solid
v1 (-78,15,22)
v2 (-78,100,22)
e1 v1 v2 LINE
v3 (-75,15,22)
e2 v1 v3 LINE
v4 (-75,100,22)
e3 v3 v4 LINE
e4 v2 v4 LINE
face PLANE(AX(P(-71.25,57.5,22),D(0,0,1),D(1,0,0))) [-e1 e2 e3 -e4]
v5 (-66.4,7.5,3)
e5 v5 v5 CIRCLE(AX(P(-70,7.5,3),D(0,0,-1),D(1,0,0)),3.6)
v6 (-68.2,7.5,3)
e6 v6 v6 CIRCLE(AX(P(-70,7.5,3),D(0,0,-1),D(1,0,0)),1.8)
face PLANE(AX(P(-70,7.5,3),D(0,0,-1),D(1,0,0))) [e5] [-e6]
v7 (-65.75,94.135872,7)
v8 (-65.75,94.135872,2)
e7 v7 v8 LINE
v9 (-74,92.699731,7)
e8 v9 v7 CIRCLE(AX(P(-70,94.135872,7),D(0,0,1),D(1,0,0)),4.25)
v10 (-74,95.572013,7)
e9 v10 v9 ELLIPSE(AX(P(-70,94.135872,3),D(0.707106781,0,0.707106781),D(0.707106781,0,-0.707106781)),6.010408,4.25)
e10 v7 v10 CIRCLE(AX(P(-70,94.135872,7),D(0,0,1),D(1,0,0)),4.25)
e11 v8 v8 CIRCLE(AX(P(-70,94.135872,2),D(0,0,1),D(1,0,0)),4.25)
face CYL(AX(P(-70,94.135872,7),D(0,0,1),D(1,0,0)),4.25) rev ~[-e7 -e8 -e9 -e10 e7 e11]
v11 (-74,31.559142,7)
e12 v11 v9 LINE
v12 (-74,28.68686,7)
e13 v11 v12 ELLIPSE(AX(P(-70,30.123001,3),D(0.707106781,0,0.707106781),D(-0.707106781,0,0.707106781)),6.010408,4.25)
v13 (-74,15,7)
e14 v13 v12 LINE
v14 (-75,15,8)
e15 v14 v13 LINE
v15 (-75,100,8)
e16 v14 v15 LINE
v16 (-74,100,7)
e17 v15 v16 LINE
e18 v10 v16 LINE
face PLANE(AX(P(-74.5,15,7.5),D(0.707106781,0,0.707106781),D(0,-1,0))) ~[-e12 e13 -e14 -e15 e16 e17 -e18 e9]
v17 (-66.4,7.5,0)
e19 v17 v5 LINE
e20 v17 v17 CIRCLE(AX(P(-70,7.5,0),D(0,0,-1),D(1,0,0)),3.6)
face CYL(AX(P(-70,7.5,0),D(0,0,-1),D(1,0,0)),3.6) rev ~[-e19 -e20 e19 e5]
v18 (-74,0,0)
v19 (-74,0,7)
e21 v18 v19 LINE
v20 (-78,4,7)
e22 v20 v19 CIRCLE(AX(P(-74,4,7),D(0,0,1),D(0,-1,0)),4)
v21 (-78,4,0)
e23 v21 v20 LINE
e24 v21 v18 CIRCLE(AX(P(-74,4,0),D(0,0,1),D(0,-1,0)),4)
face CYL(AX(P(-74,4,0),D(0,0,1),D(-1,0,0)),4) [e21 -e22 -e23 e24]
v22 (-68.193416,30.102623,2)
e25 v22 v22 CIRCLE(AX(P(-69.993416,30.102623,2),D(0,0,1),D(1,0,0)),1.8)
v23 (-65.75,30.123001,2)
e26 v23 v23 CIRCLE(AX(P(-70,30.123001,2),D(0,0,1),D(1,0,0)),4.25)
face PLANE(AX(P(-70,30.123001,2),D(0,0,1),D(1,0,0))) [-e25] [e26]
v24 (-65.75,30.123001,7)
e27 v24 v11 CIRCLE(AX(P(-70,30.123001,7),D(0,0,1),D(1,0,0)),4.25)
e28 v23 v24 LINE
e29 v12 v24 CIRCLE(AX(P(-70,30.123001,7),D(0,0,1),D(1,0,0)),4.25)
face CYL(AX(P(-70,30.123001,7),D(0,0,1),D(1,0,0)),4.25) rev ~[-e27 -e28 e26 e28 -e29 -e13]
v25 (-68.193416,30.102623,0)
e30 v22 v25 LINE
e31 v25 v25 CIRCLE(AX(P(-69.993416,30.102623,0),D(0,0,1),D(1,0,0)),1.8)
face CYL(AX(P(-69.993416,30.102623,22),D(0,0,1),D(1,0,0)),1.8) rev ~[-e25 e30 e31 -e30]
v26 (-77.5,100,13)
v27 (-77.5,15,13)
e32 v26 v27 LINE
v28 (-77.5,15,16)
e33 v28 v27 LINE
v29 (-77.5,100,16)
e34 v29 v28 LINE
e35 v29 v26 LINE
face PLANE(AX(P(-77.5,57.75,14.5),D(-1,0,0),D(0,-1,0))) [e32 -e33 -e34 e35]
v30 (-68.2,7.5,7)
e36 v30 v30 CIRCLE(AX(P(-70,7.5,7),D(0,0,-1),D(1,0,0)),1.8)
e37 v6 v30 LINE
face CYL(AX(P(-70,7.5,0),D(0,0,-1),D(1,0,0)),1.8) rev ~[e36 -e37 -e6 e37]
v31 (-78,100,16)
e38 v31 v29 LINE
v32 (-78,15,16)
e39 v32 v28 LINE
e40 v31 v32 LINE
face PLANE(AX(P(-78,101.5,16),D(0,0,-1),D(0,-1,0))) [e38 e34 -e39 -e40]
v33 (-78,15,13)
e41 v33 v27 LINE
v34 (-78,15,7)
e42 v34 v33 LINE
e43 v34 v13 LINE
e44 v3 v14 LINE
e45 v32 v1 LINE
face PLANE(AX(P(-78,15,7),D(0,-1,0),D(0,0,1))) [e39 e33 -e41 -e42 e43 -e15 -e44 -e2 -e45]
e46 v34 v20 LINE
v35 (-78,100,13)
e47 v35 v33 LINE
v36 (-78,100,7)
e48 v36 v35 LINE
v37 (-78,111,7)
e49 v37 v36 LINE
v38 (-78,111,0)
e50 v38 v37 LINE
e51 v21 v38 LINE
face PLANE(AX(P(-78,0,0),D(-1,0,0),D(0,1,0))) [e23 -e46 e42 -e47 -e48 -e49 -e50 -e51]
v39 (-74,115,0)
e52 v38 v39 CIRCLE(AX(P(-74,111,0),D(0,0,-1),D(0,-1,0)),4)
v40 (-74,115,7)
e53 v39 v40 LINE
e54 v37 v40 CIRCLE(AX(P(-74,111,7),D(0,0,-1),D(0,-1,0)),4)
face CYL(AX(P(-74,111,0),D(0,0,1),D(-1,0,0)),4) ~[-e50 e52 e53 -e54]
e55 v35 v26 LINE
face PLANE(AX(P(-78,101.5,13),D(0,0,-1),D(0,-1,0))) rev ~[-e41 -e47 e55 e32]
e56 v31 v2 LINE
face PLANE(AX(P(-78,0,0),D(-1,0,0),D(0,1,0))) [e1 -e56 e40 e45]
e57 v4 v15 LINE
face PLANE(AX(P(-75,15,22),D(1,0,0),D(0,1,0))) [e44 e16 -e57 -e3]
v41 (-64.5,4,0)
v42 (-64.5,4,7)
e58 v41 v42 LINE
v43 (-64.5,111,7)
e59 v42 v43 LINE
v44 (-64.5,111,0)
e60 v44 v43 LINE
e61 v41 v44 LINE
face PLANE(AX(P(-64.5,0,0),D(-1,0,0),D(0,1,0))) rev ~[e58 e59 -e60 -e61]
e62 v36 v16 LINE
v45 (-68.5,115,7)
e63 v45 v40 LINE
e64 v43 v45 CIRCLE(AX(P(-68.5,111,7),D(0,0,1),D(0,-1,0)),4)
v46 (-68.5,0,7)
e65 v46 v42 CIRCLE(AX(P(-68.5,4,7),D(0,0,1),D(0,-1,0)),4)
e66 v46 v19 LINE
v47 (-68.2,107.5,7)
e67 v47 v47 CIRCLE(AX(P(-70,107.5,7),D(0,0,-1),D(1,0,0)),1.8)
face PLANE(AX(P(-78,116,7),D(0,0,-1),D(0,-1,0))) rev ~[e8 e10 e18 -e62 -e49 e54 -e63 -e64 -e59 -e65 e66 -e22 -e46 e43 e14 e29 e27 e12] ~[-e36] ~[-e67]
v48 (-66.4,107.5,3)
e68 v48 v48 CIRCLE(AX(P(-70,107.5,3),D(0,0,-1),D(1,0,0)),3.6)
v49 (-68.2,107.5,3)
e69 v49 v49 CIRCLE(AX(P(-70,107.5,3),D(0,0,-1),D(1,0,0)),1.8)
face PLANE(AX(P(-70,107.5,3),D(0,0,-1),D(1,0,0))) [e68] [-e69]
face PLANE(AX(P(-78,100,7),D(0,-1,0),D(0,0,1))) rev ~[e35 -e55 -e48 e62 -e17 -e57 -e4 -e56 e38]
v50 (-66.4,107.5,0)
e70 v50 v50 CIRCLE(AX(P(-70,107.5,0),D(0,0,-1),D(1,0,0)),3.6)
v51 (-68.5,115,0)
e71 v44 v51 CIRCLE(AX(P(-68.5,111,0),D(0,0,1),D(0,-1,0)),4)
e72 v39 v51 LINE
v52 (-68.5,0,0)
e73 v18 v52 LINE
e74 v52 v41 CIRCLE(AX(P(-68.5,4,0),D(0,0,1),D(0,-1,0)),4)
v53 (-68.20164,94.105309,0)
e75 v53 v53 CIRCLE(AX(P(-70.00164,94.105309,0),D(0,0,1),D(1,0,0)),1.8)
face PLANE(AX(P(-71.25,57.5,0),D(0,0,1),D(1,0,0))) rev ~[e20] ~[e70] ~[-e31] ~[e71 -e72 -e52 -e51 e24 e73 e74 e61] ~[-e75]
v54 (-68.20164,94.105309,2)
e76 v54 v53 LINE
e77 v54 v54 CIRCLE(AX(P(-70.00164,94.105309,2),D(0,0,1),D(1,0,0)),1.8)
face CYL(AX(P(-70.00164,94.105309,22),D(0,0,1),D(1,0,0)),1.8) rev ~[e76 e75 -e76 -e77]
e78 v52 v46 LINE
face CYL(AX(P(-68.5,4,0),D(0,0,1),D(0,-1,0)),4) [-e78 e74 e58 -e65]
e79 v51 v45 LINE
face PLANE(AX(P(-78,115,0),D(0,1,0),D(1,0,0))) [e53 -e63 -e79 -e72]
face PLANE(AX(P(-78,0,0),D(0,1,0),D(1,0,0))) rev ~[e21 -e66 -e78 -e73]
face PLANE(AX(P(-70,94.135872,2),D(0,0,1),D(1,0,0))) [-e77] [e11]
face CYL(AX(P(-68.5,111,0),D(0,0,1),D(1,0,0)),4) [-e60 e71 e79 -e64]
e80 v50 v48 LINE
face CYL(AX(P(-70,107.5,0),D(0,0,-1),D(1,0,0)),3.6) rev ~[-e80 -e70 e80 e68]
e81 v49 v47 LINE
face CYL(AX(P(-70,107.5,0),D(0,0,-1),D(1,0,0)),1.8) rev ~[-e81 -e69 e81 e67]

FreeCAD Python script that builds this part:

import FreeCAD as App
import Part
import Sketcher


def edges_at(feature, points):
    """Names of the edges that pass closest to the given points."""
    edges = feature.Shape.Edges
    near = lambda p: min(range(len(edges)), key=lambda i: edges[i].distToShape(Part.Vertex(*p))[0])
    return sorted({f"Edge{near(p) + 1}" for p in points})

doc = App.newDocument("Part")
body = doc.addObject("PartDesign::Body", "Body")

# Sketch on XY plane
sketch1 = doc.addObject("Sketcher::SketchObject", "Sketch")
body.addObject(sketch1)
sketch1.AttachmentSupport = (doc.XY_Plane, [""])
sketch1.MapMode = "FlatFace"
sketch1.addGeometry(Part.LineSegment(App.Vector(-78, 115, 0), App.Vector(-78, 0, 0)), False)
sketch1.addGeometry(Part.LineSegment(App.Vector(-78, 0, 0), App.Vector(-64, 0, 0)), False)
sketch1.addGeometry(Part.LineSegment(App.Vector(-64, 0, 0), App.Vector(-64, 115, 0)), False)
sketch1.addGeometry(Part.LineSegment(App.Vector(-64, 115, 0), App.Vector(-78, 115, 0)), False)
sketch1.addConstraint(Sketcher.Constraint("Coincident", 0, 2, 1, 1))
sketch1.addConstraint(Sketcher.Constraint("Coincident", 1, 2, 2, 1))
sketch1.addConstraint(Sketcher.Constraint("Coincident", 2, 2, 3, 1))
sketch1.addConstraint(Sketcher.Constraint("Coincident", 3, 2, 0, 1))
sketch1.addConstraint(Sketcher.Constraint("Vertical", 0))
sketch1.addConstraint(Sketcher.Constraint("Horizontal", 1))
sketch1.addConstraint(Sketcher.Constraint("Vertical", 2))
sketch1.addConstraint(Sketcher.Constraint("Horizontal", 3))
sketch1.addConstraint(Sketcher.Constraint("PointOnObject", 0, 2, -1))
sketch1.addConstraint(Sketcher.Constraint("DistanceY", 0, 2, 0, 1, 115.0))
sketch1.addConstraint(Sketcher.Constraint("DistanceX", 1, 1, 1, 2, 13.5))
sketch1.addConstraint(Sketcher.Constraint("DistanceX", 0, 2, -1, 1, 78.0))
pad1 = doc.addObject("PartDesign::Pad", "Pad")
body.addObject(pad1)
pad1.Profile = sketch1
pad1.Length = 22

# Sketch on YZ plane
sketch2 = doc.addObject("Sketcher::SketchObject", "Sketch001")
body.addObject(sketch2)
sketch2.AttachmentSupport = (doc.YZ_Plane, [""])
sketch2.MapMode = "FlatFace"
sketch2.AttachmentOffset = App.Placement(App.Vector(0, 0, -78), App.Rotation())
sketch2.addGeometry(Part.LineSegment(App.Vector(116, 23, 0), App.Vector(116, 7, 0)), False)
sketch2.addGeometry(Part.LineSegment(App.Vector(116, 7, 0), App.Vector(100, 7, 0)), False)
sketch2.addGeometry(Part.LineSegment(App.Vector(100, 7, 0), App.Vector(100, 23, 0)), False)
sketch2.addGeometry(Part.LineSegment(App.Vector(100, 23, 0), App.Vector(116, 23, 0)), False)
sketch2.addGeometry(Part.LineSegment(App.Vector(15, 23, 0), App.Vector(15, 7, 0)), False)
sketch2.addGeometry(Part.LineSegment(App.Vector(15, 7, 0), App.Vector(-1, 7, 0)), False)
sketch2.addGeometry(Part.LineSegment(App.Vector(-1, 7, 0), App.Vector(-1, 23, 0)), False)
sketch2.addGeometry(Part.LineSegment(App.Vector(-1, 23, 0), App.Vector(15, 23, 0)), False)
sketch2.addConstraint(Sketcher.Constraint("Coincident", 0, 2, 1, 1))
sketch2.addConstraint(Sketcher.Constraint("Coincident", 1, 2, 2, 1))
sketch2.addConstraint(Sketcher.Constraint("Coincident", 2, 2, 3, 1))
sketch2.addConstraint(Sketcher.Constraint("Coincident", 3, 2, 0, 1))
sketch2.addConstraint(Sketcher.Constraint("Coincident", 4, 2, 5, 1))
sketch2.addConstraint(Sketcher.Constraint("Coincident", 5, 2, 6, 1))
sketch2.addConstraint(Sketcher.Constraint("Coincident", 6, 2, 7, 1))
sketch2.addConstraint(Sketcher.Constraint("Coincident", 7, 2, 4, 1))
sketch2.addConstraint(Sketcher.Constraint("Vertical", 0))
sketch2.addConstraint(Sketcher.Constraint("Horizontal", 1))
sketch2.addConstraint(Sketcher.Constraint("Vertical", 2))
sketch2.addConstraint(Sketcher.Constraint("Horizontal", 3))
sketch2.addConstraint(Sketcher.Constraint("Vertical", 4))
sketch2.addConstraint(Sketcher.Constraint("Horizontal", 5))
sketch2.addConstraint(Sketcher.Constraint("Vertical", 6))
sketch2.addConstraint(Sketcher.Constraint("Horizontal", 7))
sketch2.addConstraint(Sketcher.Constraint("Horizontal", 1, 2, 4, 2))
sketch2.addConstraint(Sketcher.Constraint("Horizontal", 3, 2, 6, 2))
sketch2.addConstraint(Sketcher.Constraint("Equal", 3, 5))
sketch2.addConstraint(Sketcher.Constraint("Equal", 7, 0))
sketch2.addConstraint(Sketcher.Constraint("DistanceX", 1, 2, 1, 1, 16.0))
sketch2.addConstraint(Sketcher.Constraint("DistanceX", -1, 1, 0, 2, 116.0))
sketch2.addConstraint(Sketcher.Constraint("DistanceY", -1, 1, 0, 2, 7.0))
sketch2.addConstraint(Sketcher.Constraint("DistanceX", -1, 1, 4, 2, 15.0))
pocket1 = doc.addObject("PartDesign::Pocket", "Pocket")
body.addObject(pocket1)
pocket1.Profile = sketch2
pocket1.Length = 30
pocket1.Reversed = True

# Sketch on XY plane
sketch3 = doc.addObject("Sketcher::SketchObject", "Sketch002")
body.addObject(sketch3)
sketch3.AttachmentSupport = (doc.XY_Plane, [""])
sketch3.MapMode = "FlatFace"
sketch3.AttachmentOffset = App.Placement(App.Vector(0, 0, 22), App.Rotation())
sketch3.addGeometry(Part.Circle(App.Vector(-70, 94.1, 0), App.Vector(0, 0, 1), 1.8), False)
sketch3.addGeometry(Part.Circle(App.Vector(-70, 30.1, 0), App.Vector(0, 0, 1), 1.8), False)
sketch3.addConstraint(Sketcher.Constraint("Equal", 0, 1))
sketch3.addConstraint(Sketcher.Constraint("Diameter", 0, 3.6))
sketch3.addConstraint(Sketcher.Constraint("DistanceX", 0, 3, -1, 1, 70.00164))
sketch3.addConstraint(Sketcher.Constraint("DistanceY", -1, 1, 0, 3, 94.105309))
sketch3.addConstraint(Sketcher.Constraint("DistanceX", 1, 3, -1, 1, 69.993416))
sketch3.addConstraint(Sketcher.Constraint("DistanceY", -1, 1, 1, 3, 30.102623))
pocket2 = doc.addObject("PartDesign::Pocket", "Pocket001")
body.addObject(pocket2)
pocket2.Profile = sketch3
pocket2.Type = "ThroughAll"

# Sketch on XY plane
sketch4 = doc.addObject("Sketcher::SketchObject", "Sketch003")
body.addObject(sketch4)
sketch4.AttachmentSupport = (doc.XY_Plane, [""])
sketch4.MapMode = "FlatFace"
sketch4.AttachmentOffset = App.Placement(App.Vector(0, 0, 22), App.Rotation())
sketch4.addGeometry(Part.Circle(App.Vector(-70, 94.1, 0), App.Vector(0, 0, 1), 3.6), False)
sketch4.addGeometry(Part.Circle(App.Vector(-70, 30.1, 0), App.Vector(0, 0, 1), 3.6), False)
sketch4.addConstraint(Sketcher.Constraint("Equal", 0, 1))
sketch4.addConstraint(Sketcher.Constraint("Vertical", 0, 3, 1, 3))
sketch4.addConstraint(Sketcher.Constraint("Diameter", 0, 7.2))
sketch4.addConstraint(Sketcher.Constraint("DistanceX", 0, 3, -1, 1, 70.0))
sketch4.addConstraint(Sketcher.Constraint("DistanceY", -1, 1, 1, 3, 30.122299))
sketch4.addConstraint(Sketcher.Constraint("DistanceY", -1, 1, 0, 3, 94.117142))
pocket3 = doc.addObject("PartDesign::Pocket", "Pocket002")
body.addObject(pocket3)
pocket3.Profile = sketch4
pocket3.Length = 18

# Sketch on XY plane
sketch5 = doc.addObject("Sketcher::SketchObject", "Sketch004")
body.addObject(sketch5)
sketch5.AttachmentSupport = (doc.XY_Plane, [""])
sketch5.MapMode = "FlatFace"
sketch5.AttachmentOffset = App.Placement(App.Vector(0, 0, 22), App.Rotation())
sketch5.addGeometry(Part.LineSegment(App.Vector(-75, 100, 0), App.Vector(-75, 15, 0)), False)
sketch5.addGeometry(Part.LineSegment(App.Vector(-75, 15, 0), App.Vector(-64, 15, 0)), False)
sketch5.addGeometry(Part.LineSegment(App.Vector(-64, 15, 0), App.Vector(-64, 100, 0)), False)
sketch5.addGeometry(Part.LineSegment(App.Vector(-64, 100, 0), App.Vector(-75, 100, 0)), False)
sketch5.addConstraint(Sketcher.Constraint("Coincident", 0, 2, 1, 1))
sketch5.addConstraint(Sketcher.Constraint("Coincident", 1, 2, 2, 1))
sketch5.addConstraint(Sketcher.Constraint("Coincident", 2, 2, 3, 1))
sketch5.addConstraint(Sketcher.Constraint("Coincident", 3, 2, 0, 1))
sketch5.addConstraint(Sketcher.Constraint("Vertical", 0))
sketch5.addConstraint(Sketcher.Constraint("Horizontal", 1))
sketch5.addConstraint(Sketcher.Constraint("Vertical", 2))
sketch5.addConstraint(Sketcher.Constraint("Horizontal", 3))
sketch5.addConstraint(Sketcher.Constraint("DistanceX", 1, 1, 1, 2, 11.0))
sketch5.addConstraint(Sketcher.Constraint("DistanceY", 0, 2, 0, 1, 85.0))
sketch5.addConstraint(Sketcher.Constraint("DistanceX", 0, 2, -1, 1, 75.0))
sketch5.addConstraint(Sketcher.Constraint("DistanceY", -1, 1, 0, 2, 15.0))
pocket4 = doc.addObject("PartDesign::Pocket", "Pocket003")
body.addObject(pocket4)
pocket4.Profile = sketch5
pocket4.Length = 15
doc.recompute()

chamfer = doc.addObject("PartDesign::Chamfer", "Chamfer")
body.addObject(chamfer)
chamfer.Base = (pocket4, edges_at(pocket4, [(-75, 57.5, 7)]))
chamfer.Size = 1

# Sketch on YZ plane
sketch6 = doc.addObject("Sketcher::SketchObject", "Sketch005")
body.addObject(sketch6)
sketch6.AttachmentSupport = (doc.YZ_Plane, [""])
sketch6.MapMode = "FlatFace"
sketch6.AttachmentOffset = App.Placement(App.Vector(0, 0, -78), App.Rotation())
sketch6.addGeometry(Part.LineSegment(App.Vector(101.5, 16, 0), App.Vector(101.5, 13, 0)), False)
sketch6.addGeometry(Part.LineSegment(App.Vector(101.5, 13, 0), App.Vector(14, 13, 0)), False)
sketch6.addGeometry(Part.LineSegment(App.Vector(14, 13, 0), App.Vector(14, 16, 0)), False)
sketch6.addGeometry(Part.LineSegment(App.Vector(14, 16, 0), App.Vector(101.5, 16, 0)), False)
sketch6.addConstraint(Sketcher.Constraint("Coincident", 0, 2, 1, 1))
sketch6.addConstraint(Sketcher.Constraint("Coincident", 1, 2, 2, 1))
sketch6.addConstraint(Sketcher.Constraint("Coincident", 2, 2, 3, 1))
sketch6.addConstraint(Sketcher.Constraint("Coincident", 3, 2, 0, 1))
sketch6.addConstraint(Sketcher.Constraint("Vertical", 0))
sketch6.addConstraint(Sketcher.Constraint("Horizontal", 1))
sketch6.addConstraint(Sketcher.Constraint("Vertical", 2))
sketch6.addConstraint(Sketcher.Constraint("Horizontal", 3))
sketch6.addConstraint(Sketcher.Constraint("DistanceY", 0, 2, 0, 1, 3.0))
sketch6.addConstraint(Sketcher.Constraint("DistanceX", 1, 2, 1, 1, 87.5))
sketch6.addConstraint(Sketcher.Constraint("DistanceY", -1, 1, 0, 2, 13.0))
sketch6.addConstraint(Sketcher.Constraint("DistanceX", -1, 1, 1, 2, 14.0))
pocket5 = doc.addObject("PartDesign::Pocket", "Pocket004")
body.addObject(pocket5)
pocket5.Profile = sketch6
pocket5.Length = 0.5
pocket5.Reversed = True

# Sketch on XY plane
sketch7 = doc.addObject("Sketcher::SketchObject", "Sketch006")
body.addObject(sketch7)
sketch7.AttachmentSupport = (doc.XY_Plane, [""])
sketch7.MapMode = "FlatFace"
sketch7.addGeometry(Part.Circle(App.Vector(-70, 7.5, 0), App.Vector(0, 0, 1), 1.8), False)
sketch7.addGeometry(Part.Circle(App.Vector(-70, 107.5, 0), App.Vector(0, 0, 1), 1.8), False)
sketch7.addConstraint(Sketcher.Constraint("Equal", 0, 1))
sketch7.addConstraint(Sketcher.Constraint("Vertical", 0, 3, 1, 3))
sketch7.addConstraint(Sketcher.Constraint("Diameter", 0, 3.6))
sketch7.addConstraint(Sketcher.Constraint("DistanceX", 0, 3, -1, 1, 70.0))
sketch7.addConstraint(Sketcher.Constraint("DistanceY", 0, 3, 1, 3, 100.0))
sketch7.addConstraint(Sketcher.Constraint("DistanceY", -1, 1, 0, 3, 7.5))
pocket6 = doc.addObject("PartDesign::Pocket", "Pocket005")
body.addObject(pocket6)
pocket6.Profile = sketch7
pocket6.Type = "ThroughAll"
pocket6.Reversed = True

# Sketch on XY plane
sketch8 = doc.addObject("Sketcher::SketchObject", "Sketch007")
body.addObject(sketch8)
sketch8.AttachmentSupport = (doc.XY_Plane, [""])
sketch8.MapMode = "FlatFace"
sketch8.addGeometry(Part.Circle(App.Vector(-70, 7.5, 0), App.Vector(0, 0, 1), 3.6), False)
sketch8.addGeometry(Part.Circle(App.Vector(-70, 107.5, 0), App.Vector(0, 0, 1), 3.6), False)
sketch8.addConstraint(Sketcher.Constraint("Equal", 0, 1))
sketch8.addConstraint(Sketcher.Constraint("Vertical", 0, 3, 1, 3))
sketch8.addConstraint(Sketcher.Constraint("Diameter", 0, 7.2))
sketch8.addConstraint(Sketcher.Constraint("DistanceX", 0, 3, -1, 1, 70.0))
sketch8.addConstraint(Sketcher.Constraint("DistanceY", 0, 3, 1, 3, 100.0))
sketch8.addConstraint(Sketcher.Constraint("DistanceY", -1, 1, 0, 3, 7.5))
pocket7 = doc.addObject("PartDesign::Pocket", "Pocket006")
body.addObject(pocket7)
pocket7.Profile = sketch8
pocket7.Length = 3
pocket7.Reversed = True
doc.recompute()

fillet = doc.addObject("PartDesign::Fillet", "Fillet")
body.addObject(fillet)
fillet.Base = (pocket7, edges_at(pocket7, [
    (-78, 0, 3.5),
    (-64.5, 0, 3.5),
    (-64.5, 115, 3.5),
    (-78, 115, 3.5),
]))
fillet.Radius = 4

# Sketch on XY plane
sketch9 = doc.addObject("Sketcher::SketchObject", "Sketch008")
body.addObject(sketch9)
sketch9.AttachmentSupport = (doc.XY_Plane, [""])
sketch9.MapMode = "FlatFace"
sketch9.AttachmentOffset = App.Placement(App.Vector(0, 0, 7), App.Rotation())
sketch9.addGeometry(Part.Circle(App.Vector(-70, 94.1, 0), App.Vector(0, 0, 1), 4.2), False)
sketch9.addGeometry(Part.Circle(App.Vector(-70, 30.1, 0), App.Vector(0, 0, 1), 4.2), False)
sketch9.addConstraint(Sketcher.Constraint("Equal", 0, 1))
sketch9.addConstraint(Sketcher.Constraint("Vertical", 0, 3, 1, 3))
sketch9.addConstraint(Sketcher.Constraint("Diameter", 0, 8.5))
sketch9.addConstraint(Sketcher.Constraint("DistanceX", 0, 3, -1, 1, 70.0))
sketch9.addConstraint(Sketcher.Constraint("DistanceY", -1, 1, 1, 3, 30.123001))
sketch9.addConstraint(Sketcher.Constraint("DistanceY", 1, 3, 0, 3, 64.012871))
pocket8 = doc.addObject("PartDesign::Pocket", "Pocket007")
body.addObject(pocket8)
pocket8.Profile = sketch9
pocket8.Length = 10
pocket8.Midplane = True

# Sketch on XY plane
sketch10 = doc.addObject("Sketcher::SketchObject", "Sketch009")
body.addObject(sketch10)
sketch10.AttachmentSupport = (doc.XY_Plane, [""])
sketch10.MapMode = "FlatFace"
sketch10.AttachmentOffset = App.Placement(App.Vector(0, 0, 3), App.Rotation())
sketch10.addGeometry(Part.Circle(App.Vector(-70, -30.1, 0), App.Vector(0, 0, 1), 1.8), False)
sketch10.addGeometry(Part.Circle(App.Vector(-70, -94.1, 0), App.Vector(0, 0, 1), 1.8), False)
sketch10.addConstraint(Sketcher.Constraint("Equal", 0, 1))
sketch10.addConstraint(Sketcher.Constraint("Vertical", 0, 3, 1, 3))
sketch10.addConstraint(Sketcher.Constraint("Diameter", 0, 3.6))
sketch10.addConstraint(Sketcher.Constraint("DistanceX", 0, 3, -1, 1, 70.0))
sketch10.addConstraint(Sketcher.Constraint("DistanceY", 1, 3, -1, 1, 94.115112))
sketch10.addConstraint(Sketcher.Constraint("DistanceY", 0, 3, -1, 1, 30.106855))
pocket9 = doc.addObject("PartDesign::Pocket", "Pocket008")
body.addObject(pocket9)
pocket9.Profile = sketch10
pocket9.Type = "ThroughAll"
pocket9.Reversed = True

doc.recompute()
